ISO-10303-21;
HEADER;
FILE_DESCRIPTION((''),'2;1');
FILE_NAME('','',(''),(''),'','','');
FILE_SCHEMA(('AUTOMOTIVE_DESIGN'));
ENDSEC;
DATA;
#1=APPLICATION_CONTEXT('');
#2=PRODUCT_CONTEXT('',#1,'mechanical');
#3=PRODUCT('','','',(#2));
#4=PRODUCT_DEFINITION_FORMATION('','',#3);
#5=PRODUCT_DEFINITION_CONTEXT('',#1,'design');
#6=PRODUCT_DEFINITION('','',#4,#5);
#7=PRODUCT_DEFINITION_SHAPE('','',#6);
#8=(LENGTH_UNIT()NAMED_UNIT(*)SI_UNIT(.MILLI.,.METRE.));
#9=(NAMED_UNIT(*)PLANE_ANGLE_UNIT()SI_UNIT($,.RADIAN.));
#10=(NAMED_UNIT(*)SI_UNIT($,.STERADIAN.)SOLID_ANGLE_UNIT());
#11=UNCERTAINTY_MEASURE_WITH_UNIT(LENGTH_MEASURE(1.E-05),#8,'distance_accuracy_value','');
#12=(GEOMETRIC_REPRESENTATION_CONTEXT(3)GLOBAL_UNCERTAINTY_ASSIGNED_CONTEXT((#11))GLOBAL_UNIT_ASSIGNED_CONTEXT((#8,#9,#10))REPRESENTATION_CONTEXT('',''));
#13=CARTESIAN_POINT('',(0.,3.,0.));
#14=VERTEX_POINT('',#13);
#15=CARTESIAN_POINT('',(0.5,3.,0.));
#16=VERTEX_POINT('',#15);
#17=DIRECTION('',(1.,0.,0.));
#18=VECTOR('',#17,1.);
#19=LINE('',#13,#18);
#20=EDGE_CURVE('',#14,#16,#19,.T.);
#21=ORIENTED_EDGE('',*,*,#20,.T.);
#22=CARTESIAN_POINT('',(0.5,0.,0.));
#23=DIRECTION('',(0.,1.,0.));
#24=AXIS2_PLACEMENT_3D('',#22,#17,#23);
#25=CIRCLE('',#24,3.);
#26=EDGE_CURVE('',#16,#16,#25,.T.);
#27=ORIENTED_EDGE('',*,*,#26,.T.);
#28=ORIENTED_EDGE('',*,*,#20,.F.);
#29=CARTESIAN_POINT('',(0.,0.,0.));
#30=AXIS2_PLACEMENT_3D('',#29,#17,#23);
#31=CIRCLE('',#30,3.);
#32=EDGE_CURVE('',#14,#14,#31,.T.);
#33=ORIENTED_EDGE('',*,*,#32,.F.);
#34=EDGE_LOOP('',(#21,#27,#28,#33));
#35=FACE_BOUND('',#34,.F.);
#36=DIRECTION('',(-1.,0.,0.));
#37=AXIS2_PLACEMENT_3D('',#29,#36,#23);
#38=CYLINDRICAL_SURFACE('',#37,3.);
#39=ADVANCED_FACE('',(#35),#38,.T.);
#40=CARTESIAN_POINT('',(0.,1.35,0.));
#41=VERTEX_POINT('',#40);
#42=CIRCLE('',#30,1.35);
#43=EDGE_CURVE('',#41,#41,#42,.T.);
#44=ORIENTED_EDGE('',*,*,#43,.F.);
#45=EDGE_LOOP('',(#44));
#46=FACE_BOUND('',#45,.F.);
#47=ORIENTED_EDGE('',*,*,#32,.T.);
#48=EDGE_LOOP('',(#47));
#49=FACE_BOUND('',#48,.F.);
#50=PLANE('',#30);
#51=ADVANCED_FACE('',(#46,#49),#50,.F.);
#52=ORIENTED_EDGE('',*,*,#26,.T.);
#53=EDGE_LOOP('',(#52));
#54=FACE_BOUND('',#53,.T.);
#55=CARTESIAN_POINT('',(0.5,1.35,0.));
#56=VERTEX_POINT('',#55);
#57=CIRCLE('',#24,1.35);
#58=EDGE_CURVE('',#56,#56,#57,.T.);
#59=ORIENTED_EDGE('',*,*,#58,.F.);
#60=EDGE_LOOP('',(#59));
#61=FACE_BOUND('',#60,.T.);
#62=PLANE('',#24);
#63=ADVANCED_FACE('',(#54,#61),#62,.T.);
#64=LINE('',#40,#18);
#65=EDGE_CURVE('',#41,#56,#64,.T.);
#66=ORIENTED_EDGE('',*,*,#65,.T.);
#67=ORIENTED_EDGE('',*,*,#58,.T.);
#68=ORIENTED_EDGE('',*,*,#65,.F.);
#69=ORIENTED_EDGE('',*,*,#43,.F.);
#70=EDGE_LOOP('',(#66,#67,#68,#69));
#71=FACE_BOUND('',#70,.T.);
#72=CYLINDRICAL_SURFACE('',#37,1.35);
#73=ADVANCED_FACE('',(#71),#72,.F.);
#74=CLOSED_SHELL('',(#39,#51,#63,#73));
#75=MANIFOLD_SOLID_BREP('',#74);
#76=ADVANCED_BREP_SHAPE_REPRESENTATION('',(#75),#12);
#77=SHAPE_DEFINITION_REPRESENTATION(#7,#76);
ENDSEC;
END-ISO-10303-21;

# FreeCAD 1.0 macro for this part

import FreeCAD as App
import Part
import Sketcher
Q = App.Units.Quantity

doc = App.newDocument("Part")
body = doc.addObject("PartDesign::Body", "Body")

# Sketch on YZ plane
sketch1 = doc.addObject("Sketcher::SketchObject", "Sketch")
body.addObject(sketch1)
sketch1.AttachmentSupport = (doc.YZ_Plane, [""])
sketch1.MapMode = "FlatFace"
sketch1.addGeometry(Part.Circle(App.Vector(0, 0, 0), App.Vector(0, 0, 1), 3), False)
sketch1.addGeometry(Part.Circle(App.Vector(0, 0, 0), App.Vector(0, 0, 1), 1.4), False)
sketch1.addConstraint(Sketcher.Constraint("Coincident", 0, 3, -1, 1))
sketch1.addConstraint(Sketcher.Constraint("Coincident", 1, 3, -1, 1))
sketch1.addConstraint(Sketcher.Constraint("Diameter", 0, Q("6 mm")))
sketch1.addConstraint(Sketcher.Constraint("Diameter", 1, Q("2.7 mm")))
pad1 = doc.addObject("PartDesign::Pad", "Pad")
body.addObject(pad1)
pad1.Profile = sketch1
pad1.Length = 0.5

doc.recompute()
